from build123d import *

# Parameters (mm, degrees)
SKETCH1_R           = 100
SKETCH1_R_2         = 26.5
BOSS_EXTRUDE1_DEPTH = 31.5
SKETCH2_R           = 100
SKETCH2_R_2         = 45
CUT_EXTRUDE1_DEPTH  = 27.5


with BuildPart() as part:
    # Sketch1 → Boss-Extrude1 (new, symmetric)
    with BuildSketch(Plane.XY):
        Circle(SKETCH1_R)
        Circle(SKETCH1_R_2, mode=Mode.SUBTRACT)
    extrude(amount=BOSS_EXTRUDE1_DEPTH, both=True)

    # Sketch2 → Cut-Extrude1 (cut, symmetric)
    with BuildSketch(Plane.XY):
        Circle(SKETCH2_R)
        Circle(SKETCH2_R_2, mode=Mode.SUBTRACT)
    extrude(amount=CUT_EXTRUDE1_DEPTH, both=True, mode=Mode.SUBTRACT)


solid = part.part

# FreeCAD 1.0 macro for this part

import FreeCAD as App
import Part
import Sketcher
from FreeCAD import Vector

doc = App.newDocument("Part")
body = doc.addObject("PartDesign::Body", "Body")

# Sketch on XY plane
sketch1 = doc.addObject("Sketcher::SketchObject", "Sketch")
body.addObject(sketch1)
sketch1.AttachmentSupport = (doc.XY_Plane, [""])
sketch1.MapMode = "FlatFace"
sketch1.addGeometry(Part.Circle(Vector(0, 0, 0), Vector(0, 0, 1), 100), False)
sketch1.addGeometry(Part.Circle(Vector(0, 0, 0), Vector(0, 0, 1), 26), False)
sketch1.addConstraint(Sketcher.Constraint("Coincident", 0, 3, -1, 1))
sketch1.addConstraint(Sketcher.Constraint("Coincident", 1, 3, -1, 1))
sketch1.addConstraint(Sketcher.Constraint("Diameter", 0, 200.0))
sketch1.addConstraint(Sketcher.Constraint("Diameter", 1, 53.0))
pad1 = doc.addObject("PartDesign::Pad", "Pad")
body.addObject(pad1)
pad1.Profile = sketch1
pad1.Length = 63
pad1.Midplane = True

# Sketch on XY plane
sketch2 = doc.addObject("Sketcher::SketchObject", "Sketch001")
body.addObject(sketch2)
sketch2.AttachmentSupport = (doc.XY_Plane, [""])
sketch2.MapMode = "FlatFace"
sketch2.addGeometry(Part.Circle(Vector(0, 0, 0), Vector(0, 0, 1), 100), False)
sketch2.addGeometry(Part.Circle(Vector(0, 0, 0), Vector(0, 0, 1), 45), False)
sketch2.addConstraint(Sketcher.Constraint("Coincident", 0, 3, -1, 1))
sketch2.addConstraint(Sketcher.Constraint("Coincident", 1, 3, -1, 1))
sketch2.addConstraint(Sketcher.Constraint("Diameter", 0, 200.0))
sketch2.addConstraint(Sketcher.Constraint("Diameter", 1, 90.0))
pocket1 = doc.addObject("PartDesign::Pocket", "Pocket")
body.addObject(pocket1)
pocket1.Profile = sketch2
pocket1.Length = 55
pocket1.Midplane = True

doc.recompute()
